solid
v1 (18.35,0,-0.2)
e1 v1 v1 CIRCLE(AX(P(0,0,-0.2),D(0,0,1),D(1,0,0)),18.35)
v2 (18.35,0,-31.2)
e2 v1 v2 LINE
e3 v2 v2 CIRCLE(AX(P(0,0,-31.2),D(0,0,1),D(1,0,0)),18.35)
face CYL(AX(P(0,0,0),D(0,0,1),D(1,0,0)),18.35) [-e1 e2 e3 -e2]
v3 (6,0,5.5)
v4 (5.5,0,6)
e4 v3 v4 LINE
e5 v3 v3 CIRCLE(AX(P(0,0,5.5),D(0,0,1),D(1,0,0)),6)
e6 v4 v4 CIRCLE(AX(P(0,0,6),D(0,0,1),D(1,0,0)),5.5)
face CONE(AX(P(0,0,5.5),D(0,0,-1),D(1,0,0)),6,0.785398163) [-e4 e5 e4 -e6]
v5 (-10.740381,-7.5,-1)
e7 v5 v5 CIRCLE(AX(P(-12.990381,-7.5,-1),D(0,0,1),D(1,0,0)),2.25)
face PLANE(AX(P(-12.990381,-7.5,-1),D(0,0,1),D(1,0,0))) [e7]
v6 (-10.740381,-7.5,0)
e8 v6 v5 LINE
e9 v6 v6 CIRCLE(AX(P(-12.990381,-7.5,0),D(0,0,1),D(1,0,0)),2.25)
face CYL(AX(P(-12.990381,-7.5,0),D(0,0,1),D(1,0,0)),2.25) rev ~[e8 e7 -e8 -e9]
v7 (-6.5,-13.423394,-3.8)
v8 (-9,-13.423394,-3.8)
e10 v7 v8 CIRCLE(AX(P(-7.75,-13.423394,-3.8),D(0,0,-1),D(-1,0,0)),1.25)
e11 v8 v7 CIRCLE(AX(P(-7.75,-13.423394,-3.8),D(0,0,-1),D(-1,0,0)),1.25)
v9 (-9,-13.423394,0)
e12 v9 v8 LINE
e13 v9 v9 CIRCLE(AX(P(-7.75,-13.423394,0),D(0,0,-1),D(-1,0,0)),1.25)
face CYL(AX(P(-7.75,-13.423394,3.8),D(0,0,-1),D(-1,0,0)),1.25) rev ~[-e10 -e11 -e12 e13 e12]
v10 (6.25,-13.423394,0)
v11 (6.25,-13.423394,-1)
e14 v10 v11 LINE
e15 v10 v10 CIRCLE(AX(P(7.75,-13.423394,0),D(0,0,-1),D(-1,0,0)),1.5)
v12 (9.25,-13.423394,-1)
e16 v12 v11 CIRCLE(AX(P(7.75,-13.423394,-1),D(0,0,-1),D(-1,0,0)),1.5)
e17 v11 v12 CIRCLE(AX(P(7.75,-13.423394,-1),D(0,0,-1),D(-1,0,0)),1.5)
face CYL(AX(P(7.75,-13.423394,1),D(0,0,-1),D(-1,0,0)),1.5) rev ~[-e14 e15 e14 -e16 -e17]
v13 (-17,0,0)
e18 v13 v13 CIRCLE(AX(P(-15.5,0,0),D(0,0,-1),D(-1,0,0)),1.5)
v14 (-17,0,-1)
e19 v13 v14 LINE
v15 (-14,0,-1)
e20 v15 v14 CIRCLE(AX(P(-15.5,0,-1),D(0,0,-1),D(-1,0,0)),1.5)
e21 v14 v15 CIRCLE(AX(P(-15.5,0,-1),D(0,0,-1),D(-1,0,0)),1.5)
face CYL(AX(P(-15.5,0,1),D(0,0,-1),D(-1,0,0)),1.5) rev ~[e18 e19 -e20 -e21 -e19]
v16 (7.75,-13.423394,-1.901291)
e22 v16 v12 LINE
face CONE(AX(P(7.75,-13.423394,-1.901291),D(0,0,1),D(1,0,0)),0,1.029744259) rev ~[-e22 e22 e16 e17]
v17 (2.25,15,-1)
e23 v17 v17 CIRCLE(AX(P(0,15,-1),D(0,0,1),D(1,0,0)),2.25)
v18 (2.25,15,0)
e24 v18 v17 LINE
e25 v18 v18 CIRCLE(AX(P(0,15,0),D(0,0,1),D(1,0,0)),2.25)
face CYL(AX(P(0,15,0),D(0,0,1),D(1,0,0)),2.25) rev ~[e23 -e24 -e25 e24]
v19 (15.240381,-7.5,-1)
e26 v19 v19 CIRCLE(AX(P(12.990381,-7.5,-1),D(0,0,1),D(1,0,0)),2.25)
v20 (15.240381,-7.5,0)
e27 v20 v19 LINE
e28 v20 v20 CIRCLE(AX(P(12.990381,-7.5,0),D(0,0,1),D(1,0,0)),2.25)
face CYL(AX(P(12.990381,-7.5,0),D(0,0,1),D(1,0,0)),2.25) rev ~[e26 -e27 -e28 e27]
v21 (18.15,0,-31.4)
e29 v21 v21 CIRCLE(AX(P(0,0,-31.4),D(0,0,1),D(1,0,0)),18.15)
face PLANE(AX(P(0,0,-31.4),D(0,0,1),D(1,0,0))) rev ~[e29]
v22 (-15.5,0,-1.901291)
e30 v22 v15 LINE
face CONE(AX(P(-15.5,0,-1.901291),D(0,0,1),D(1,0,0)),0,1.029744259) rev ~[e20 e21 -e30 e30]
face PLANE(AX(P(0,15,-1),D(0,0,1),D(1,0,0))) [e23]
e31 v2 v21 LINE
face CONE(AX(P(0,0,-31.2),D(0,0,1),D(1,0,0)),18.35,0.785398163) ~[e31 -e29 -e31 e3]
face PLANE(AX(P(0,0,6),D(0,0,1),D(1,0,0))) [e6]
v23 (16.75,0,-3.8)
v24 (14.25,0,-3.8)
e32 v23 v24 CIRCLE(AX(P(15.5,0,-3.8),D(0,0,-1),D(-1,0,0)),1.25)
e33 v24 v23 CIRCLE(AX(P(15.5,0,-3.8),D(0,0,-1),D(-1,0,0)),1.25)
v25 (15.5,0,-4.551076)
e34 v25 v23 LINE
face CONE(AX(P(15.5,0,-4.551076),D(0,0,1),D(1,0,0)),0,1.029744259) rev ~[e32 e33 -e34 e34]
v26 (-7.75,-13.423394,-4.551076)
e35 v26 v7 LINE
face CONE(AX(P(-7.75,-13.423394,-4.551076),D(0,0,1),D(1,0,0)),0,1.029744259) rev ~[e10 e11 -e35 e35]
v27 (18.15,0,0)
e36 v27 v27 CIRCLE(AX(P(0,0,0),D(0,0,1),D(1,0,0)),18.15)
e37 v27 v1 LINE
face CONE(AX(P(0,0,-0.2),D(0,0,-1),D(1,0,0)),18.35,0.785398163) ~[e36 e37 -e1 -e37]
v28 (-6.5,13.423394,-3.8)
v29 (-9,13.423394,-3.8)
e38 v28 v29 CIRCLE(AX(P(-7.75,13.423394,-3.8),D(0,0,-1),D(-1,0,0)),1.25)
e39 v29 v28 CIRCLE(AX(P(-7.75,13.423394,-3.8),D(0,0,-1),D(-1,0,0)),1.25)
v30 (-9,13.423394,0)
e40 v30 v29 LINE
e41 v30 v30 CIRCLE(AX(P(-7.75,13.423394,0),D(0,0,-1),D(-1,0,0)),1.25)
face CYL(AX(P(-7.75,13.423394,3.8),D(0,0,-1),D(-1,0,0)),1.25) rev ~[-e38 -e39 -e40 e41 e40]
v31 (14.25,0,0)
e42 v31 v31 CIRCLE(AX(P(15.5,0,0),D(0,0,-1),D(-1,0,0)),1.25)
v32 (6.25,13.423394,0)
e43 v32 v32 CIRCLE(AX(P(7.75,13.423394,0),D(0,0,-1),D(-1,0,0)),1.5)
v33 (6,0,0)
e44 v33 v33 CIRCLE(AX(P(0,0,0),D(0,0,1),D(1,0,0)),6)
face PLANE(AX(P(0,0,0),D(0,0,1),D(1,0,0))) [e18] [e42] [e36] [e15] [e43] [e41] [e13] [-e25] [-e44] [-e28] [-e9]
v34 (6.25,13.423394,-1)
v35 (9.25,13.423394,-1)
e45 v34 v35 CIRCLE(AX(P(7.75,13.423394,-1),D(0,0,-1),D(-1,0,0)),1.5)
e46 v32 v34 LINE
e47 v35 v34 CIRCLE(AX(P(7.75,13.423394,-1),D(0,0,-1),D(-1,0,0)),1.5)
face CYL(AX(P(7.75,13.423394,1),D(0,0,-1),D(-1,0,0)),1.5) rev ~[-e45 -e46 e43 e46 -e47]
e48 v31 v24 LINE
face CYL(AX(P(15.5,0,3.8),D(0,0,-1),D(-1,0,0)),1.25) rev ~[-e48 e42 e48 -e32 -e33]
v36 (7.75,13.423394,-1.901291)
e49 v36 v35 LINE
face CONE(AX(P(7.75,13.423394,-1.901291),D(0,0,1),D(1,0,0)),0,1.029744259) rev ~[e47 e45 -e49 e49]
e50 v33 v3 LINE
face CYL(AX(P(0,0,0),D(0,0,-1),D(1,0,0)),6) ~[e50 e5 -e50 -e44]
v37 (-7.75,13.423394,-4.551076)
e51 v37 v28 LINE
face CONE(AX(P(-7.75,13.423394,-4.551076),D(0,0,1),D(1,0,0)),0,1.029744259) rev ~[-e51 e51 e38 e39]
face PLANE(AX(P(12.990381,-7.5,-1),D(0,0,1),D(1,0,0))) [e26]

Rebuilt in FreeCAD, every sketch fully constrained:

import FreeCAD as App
import Part
import Sketcher


def edges_at(feature, points):
    """Names of the edges that pass closest to the given points."""
    edges = feature.Shape.Edges
    near = lambda p: min(range(len(edges)), key=lambda i: edges[i].distToShape(Part.Vertex(*p))[0])
    return sorted({f"Edge{near(p) + 1}" for p in points})

doc = App.newDocument("Part")
body = doc.addObject("PartDesign::Body", "Body")

# Sketch on XY plane
sketch1 = body.newObject("Sketcher::SketchObject", "Sketch")
sketch1.AttachmentSupport = (doc.getObject("XY_Plane"), [""])
sketch1.MapMode = "FlatFace"
sketch1.addGeometry(Part.Circle(App.Vector(0, 0, 0), App.Vector(0, 0, 1), 18.35), False)
sketch1.addConstraint([
    Sketcher.Constraint("Coincident", 0, 3, -1, 1),
    Sketcher.Constraint("Diameter", 0, 36.7),
])
pad1 = body.newObject("PartDesign::Pad", "Pad")
pad1.Profile = sketch1
pad1.Length = 31.4
pad1.Reversed = True

# Sketch on XY plane
sketch2 = body.newObject("Sketcher::SketchObject", "Sketch001")
sketch2.AttachmentSupport = (doc.getObject("XY_Plane"), [""])
sketch2.MapMode = "FlatFace"
sketch2.addGeometry(Part.Circle(App.Vector(0, 0, 0), App.Vector(0, 0, 1), 6), False)
sketch2.addConstraint([
    Sketcher.Constraint("Coincident", 0, 3, -1, 1),
    Sketcher.Constraint("Diameter", 0, 12.0),
])
pad2 = body.newObject("PartDesign::Pad", "Pad001")
pad2.Profile = sketch2
pad2.Length = 6
doc.recompute()

chamfer = body.newObject("PartDesign::Chamfer", "Chamfer")
chamfer.Base = (pad2, edges_at(pad2, [(-6, 0, 6)]))
chamfer.Size = 0.5
doc.recompute()

chamfer2 = body.newObject("PartDesign::Chamfer", "Chamfer001")
chamfer2.Base = (chamfer, edges_at(chamfer, [(-18.35, 0, 0), (-18.35, 0, -31.4)]))
chamfer2.Size = 0.2

# Sketch on XY plane
sketch3 = body.newObject("Sketcher::SketchObject", "Sketch002")
sketch3.AttachmentSupport = (doc.getObject("XY_Plane"), [""])
sketch3.MapMode = "FlatFace"
sketch3.addGeometry([
    Part.Circle(App.Vector(0, 15, 0), App.Vector(0, 0, 1), 2.25),
    Part.Circle(App.Vector(-12.990381, -7.5, 0), App.Vector(0, 0, 1), 2.25),
    Part.Circle(App.Vector(12.990381, -7.5, 0), App.Vector(0, 0, 1), 2.25),
], False)
sketch3.addConstraint([
    Sketcher.Constraint("Equal", 0, 1),
    Sketcher.Constraint("Equal", 1, 2),
    Sketcher.Constraint("Symmetric", 1, 3, 2, 3, -2),
    Sketcher.Constraint("PointOnObject", 0, 3, -2),
    Sketcher.Constraint("Diameter", 0, 4.5),
    Sketcher.Constraint("DistanceY", -1, 1, 0, 3, 15.0),
    Sketcher.Constraint("DistanceY", 1, 3, -1, 1, 7.5),
    Sketcher.Constraint("DistanceX", 1, 3, -1, 1, 12.990381),
])
pocket1 = body.newObject("PartDesign::Pocket", "Pocket")
pocket1.Profile = sketch3
pocket1.Length = 1

# Sketch on XY plane
sketch4 = body.newObject("Sketcher::SketchObject", "Sketch003")
sketch4.AttachmentSupport = (doc.getObject("XY_Plane"), [""])
sketch4.MapMode = "FlatFace"
sketch4.addGeometry([
    Part.Circle(App.Vector(7.75, 13.423394, 0), App.Vector(0, 0, 1), 1.5),
    Part.Circle(App.Vector(7.75, -13.423394, 0), App.Vector(0, 0, 1), 1.5),
    Part.Circle(App.Vector(-15.5, 0, 0), App.Vector(0, 0, 1), 1.5),
], False)
sketch4.addConstraint([
    Sketcher.Constraint("Equal", 0, 1),
    Sketcher.Constraint("Equal", 1, 2),
    Sketcher.Constraint("Symmetric", 0, 3, 1, 3, -1),
    Sketcher.Constraint("PointOnObject", 2, 3, -1),
    Sketcher.Constraint("Diameter", 0, 3.0),
    Sketcher.Constraint("DistanceX", 2, 3, -1, 1, 15.5),
    Sketcher.Constraint("DistanceX", -1, 1, 0, 3, 7.75),
    Sketcher.Constraint("DistanceY", -1, 1, 0, 3, 13.423394),
])
doc.recompute()
hole = body.newObject("PartDesign::Hole", "Hole")
hole.Profile = sketch4
hole.ThreadType = "None"
hole.Diameter = 3
hole.DepthType = "Dimension"
hole.Depth = 1
hole.DrillPoint = "Angled"
hole.DrillPointAngle = 118

# Sketch on XY plane
sketch5 = body.newObject("Sketcher::SketchObject", "Sketch004")
sketch5.AttachmentSupport = (doc.getObject("XY_Plane"), [""])
sketch5.MapMode = "FlatFace"
sketch5.addGeometry([
    Part.Circle(App.Vector(-7.75, 13.423394, 0), App.Vector(0, 0, 1), 1.25),
    Part.Circle(App.Vector(15.5, 0, 0), App.Vector(0, 0, 1), 1.25),
    Part.Circle(App.Vector(-7.75, -13.423394, 0), App.Vector(0, 0, 1), 1.25),
], False)
sketch5.addConstraint([
    Sketcher.Constraint("Equal", 0, 1),
    Sketcher.Constraint("Equal", 1, 2),
    Sketcher.Constraint("Symmetric", 0, 3, 2, 3, -1),
    Sketcher.Constraint("PointOnObject", 1, 3, -1),
    Sketcher.Constraint("Diameter", 0, 2.5),
    Sketcher.Constraint("DistanceX", -1, 1, 1, 3, 15.5),
    Sketcher.Constraint("DistanceX", 0, 3, -1, 1, 7.75),
    Sketcher.Constraint("DistanceY", -1, 1, 0, 3, 13.423394),
])
doc.recompute()
hole2 = body.newObject("PartDesign::Hole", "Hole001")
hole2.Profile = sketch5
hole2.ThreadType = "None"
hole2.Diameter = 2.5
hole2.DepthType = "Dimension"
hole2.Depth = 3.8
hole2.DrillPoint = "Angled"
hole2.DrillPointAngle = 118

doc.recompute()
